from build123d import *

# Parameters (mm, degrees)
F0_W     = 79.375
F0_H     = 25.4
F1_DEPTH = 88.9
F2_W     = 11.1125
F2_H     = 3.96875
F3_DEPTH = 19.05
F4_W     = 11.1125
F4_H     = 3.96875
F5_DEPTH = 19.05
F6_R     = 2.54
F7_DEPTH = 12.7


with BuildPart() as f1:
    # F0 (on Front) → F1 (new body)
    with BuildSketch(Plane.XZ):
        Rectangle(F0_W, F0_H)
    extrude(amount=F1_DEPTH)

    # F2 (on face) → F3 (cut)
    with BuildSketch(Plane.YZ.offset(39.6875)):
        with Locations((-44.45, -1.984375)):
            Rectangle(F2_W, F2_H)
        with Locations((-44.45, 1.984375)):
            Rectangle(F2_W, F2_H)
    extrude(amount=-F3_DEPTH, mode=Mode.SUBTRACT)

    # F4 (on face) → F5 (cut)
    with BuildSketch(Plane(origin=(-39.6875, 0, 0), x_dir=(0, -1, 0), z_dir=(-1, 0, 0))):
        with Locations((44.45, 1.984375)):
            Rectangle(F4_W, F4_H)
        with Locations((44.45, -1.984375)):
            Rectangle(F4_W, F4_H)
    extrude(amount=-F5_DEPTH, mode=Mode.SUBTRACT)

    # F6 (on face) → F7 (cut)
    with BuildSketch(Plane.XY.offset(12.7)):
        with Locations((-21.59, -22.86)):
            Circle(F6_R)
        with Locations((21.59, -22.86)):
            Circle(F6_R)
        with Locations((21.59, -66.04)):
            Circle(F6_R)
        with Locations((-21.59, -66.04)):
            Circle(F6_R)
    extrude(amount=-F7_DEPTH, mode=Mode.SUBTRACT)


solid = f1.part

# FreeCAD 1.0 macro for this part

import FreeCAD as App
import Part
import Sketcher
from FreeCAD import Vector
Q = App.Units.Quantity

doc = App.newDocument("Part")
body = doc.addObject("PartDesign::Body", "Body")

# Sketch on XZ plane
sketch1 = body.newObject("Sketcher::SketchObject", "Sketch")
sketch1.AttachmentSupport = (doc.getObject("XZ_Plane"), [""])
sketch1.MapMode = "FlatFace"
sketch1.addGeometry(Part.LineSegment(Vector(-40, 13, 0), Vector(-40, -13, 0)), False)
sketch1.addGeometry(Part.LineSegment(Vector(-40, -13, 0), Vector(40, -13, 0)), False)
sketch1.addGeometry(Part.LineSegment(Vector(40, -13, 0), Vector(40, 13, 0)), False)
sketch1.addGeometry(Part.LineSegment(Vector(40, 13, 0), Vector(-40, 13, 0)), False)
sketch1.addConstraint(Sketcher.Constraint("Coincident", 0, 2, 1, 1))
sketch1.addConstraint(Sketcher.Constraint("Coincident", 1, 2, 2, 1))
sketch1.addConstraint(Sketcher.Constraint("Coincident", 2, 2, 3, 1))
sketch1.addConstraint(Sketcher.Constraint("Coincident", 3, 2, 0, 1))
sketch1.addConstraint(Sketcher.Constraint("Vertical", 0))
sketch1.addConstraint(Sketcher.Constraint("Horizontal", 1))
sketch1.addConstraint(Sketcher.Constraint("Vertical", 2))
sketch1.addConstraint(Sketcher.Constraint("Horizontal", 3))
sketch1.addConstraint(Sketcher.Constraint("Symmetric", 0, 2, 2, 2, -1, 1))
sketch1.addConstraint(Sketcher.Constraint("DistanceY", 0, 2, 0, 1, Q("1 in")))
sketch1.addConstraint(Sketcher.Constraint("DistanceX", 1, 1, 1, 2, Q("3.125 in")))
pad1 = body.newObject("PartDesign::Pad", "Pad")
pad1.Profile = sketch1
pad1.Length = Q("3.5 in")

# Sketch on YZ plane
sketch2 = body.newObject("Sketcher::SketchObject", "Sketch001")
sketch2.AttachmentSupport = (doc.getObject("YZ_Plane"), [""])
sketch2.MapMode = "FlatFace"
sketch2.AttachmentOffset = App.Placement(Vector(0, 0, 1.5625 * 25.4), App.Rotation())
sketch2.addGeometry(Part.LineSegment(Vector(-50, -4, 0), Vector(-39, -4, 0)), False)
sketch2.addGeometry(Part.LineSegment(Vector(-39, -4, 0), Vector(-39, 4, 0)), False)
sketch2.addGeometry(Part.LineSegment(Vector(-39, 4, 0), Vector(-50, 4, 0)), False)
sketch2.addGeometry(Part.LineSegment(Vector(-50, 4, 0), Vector(-50, -4, 0)), False)
sketch2.addConstraint(Sketcher.Constraint("Coincident", 0, 2, 1, 1))
sketch2.addConstraint(Sketcher.Constraint("Coincident", 1, 2, 2, 1))
sketch2.addConstraint(Sketcher.Constraint("Coincident", 2, 2, 3, 1))
sketch2.addConstraint(Sketcher.Constraint("Coincident", 3, 2, 0, 1))
sketch2.addConstraint(Sketcher.Constraint("Horizontal", 0))
sketch2.addConstraint(Sketcher.Constraint("Vertical", 1))
sketch2.addConstraint(Sketcher.Constraint("Horizontal", 2))
sketch2.addConstraint(Sketcher.Constraint("Vertical", 3))
sketch2.addConstraint(Sketcher.Constraint("DistanceX", 0, 1, 0, 2, Q("0.4375 in")))
sketch2.addConstraint(Sketcher.Constraint("DistanceY", 1, 1, 1, 2, Q("0.3125 in")))
sketch2.addConstraint(Sketcher.Constraint("DistanceX", 0, 2, -1, 1, Q("1.53125 in")))
sketch2.addConstraint(Sketcher.Constraint("DistanceY", 0, 2, -1, 1, Q("0.15625 in")))
pocket1 = body.newObject("PartDesign::Pocket", "Pocket")
pocket1.Profile = sketch2
pocket1.Length = Q("0.75 in")

# Sketch on YZ plane
sketch3 = body.newObject("Sketcher::SketchObject", "Sketch002")
sketch3.AttachmentSupport = (doc.getObject("YZ_Plane"), [""])
sketch3.MapMode = "FlatFace"
sketch3.AttachmentOffset = App.Placement(Vector(0, 0, -1.5625 * 25.4), App.Rotation())
sketch3.addGeometry(Part.LineSegment(Vector(-39, 4, 0), Vector(-39, -4, 0)), False)
sketch3.addGeometry(Part.LineSegment(Vector(-39, -4, 0), Vector(-50, -4, 0)), False)
sketch3.addGeometry(Part.LineSegment(Vector(-50, -4, 0), Vector(-50, 4, 0)), False)
sketch3.addGeometry(Part.LineSegment(Vector(-50, 4, 0), Vector(-39, 4, 0)), False)
sketch3.addConstraint(Sketcher.Constraint("Coincident", 0, 2, 1, 1))
sketch3.addConstraint(Sketcher.Constraint("Coincident", 1, 2, 2, 1))
sketch3.addConstraint(Sketcher.Constraint("Coincident", 2, 2, 3, 1))
sketch3.addConstraint(Sketcher.Constraint("Coincident", 3, 2, 0, 1))
sketch3.addConstraint(Sketcher.Constraint("Vertical", 0))
sketch3.addConstraint(Sketcher.Constraint("Horizontal", 1))
sketch3.addConstraint(Sketcher.Constraint("Vertical", 2))
sketch3.addConstraint(Sketcher.Constraint("Horizontal", 3))
sketch3.addConstraint(Sketcher.Constraint("DistanceX", 1, 2, 1, 1, Q("0.4375 in")))
sketch3.addConstraint(Sketcher.Constraint("DistanceY", 0, 2, 0, 1, Q("0.3125 in")))
sketch3.addConstraint(Sketcher.Constraint("DistanceX", 0, 2, -1, 1, Q("1.53125 in")))
sketch3.addConstraint(Sketcher.Constraint("DistanceY", 0, 2, -1, 1, Q("0.15625 in")))
pocket2 = body.newObject("PartDesign::Pocket", "Pocket001")
pocket2.Profile = sketch3
pocket2.Length = Q("0.75 in")
pocket2.Reversed = True

# Sketch on XY plane
sketch4 = body.newObject("Sketcher::SketchObject", "Sketch003")
sketch4.AttachmentSupport = (doc.getObject("XY_Plane"), [""])
sketch4.MapMode = "FlatFace"
sketch4.AttachmentOffset = App.Placement(Vector(0, 0, 0.5 * 25.4), App.Rotation())
sketch4.addGeometry(Part.Circle(Vector(-21.6, -22.9, 0), Vector(0, 0, 1), 2.5), False)
sketch4.addGeometry(Part.Circle(Vector(21.6, -22.9, 0), Vector(0, 0, 1), 2.5), False)
sketch4.addGeometry(Part.Circle(Vector(21.6, -66, 0), Vector(0, 0, 1), 2.5), False)
sketch4.addGeometry(Part.Circle(Vector(-21.6, -66, 0), Vector(0, 0, 1), 2.5), False)
sketch4.addConstraint(Sketcher.Constraint("Equal", 0, 1))
sketch4.addConstraint(Sketcher.Constraint("Equal", 1, 2))
sketch4.addConstraint(Sketcher.Constraint("Equal", 2, 3))
sketch4.addConstraint(Sketcher.Constraint("Symmetric", 0, 3, 1, 3, -2))
sketch4.addConstraint(Sketcher.Constraint("Symmetric", 2, 3, 3, 3, -2))
sketch4.addConstraint(Sketcher.Constraint("Vertical", 1, 3, 2, 3))
sketch4.addConstraint(Sketcher.Constraint("Diameter", 0, Q("0.2 in")))
sketch4.addConstraint(Sketcher.Constraint("DistanceY", 0, 3, -1, 1, Q("0.9 in")))
sketch4.addConstraint(Sketcher.Constraint("DistanceY", 2, 3, -1, 1, Q("2.6 in")))
sketch4.addConstraint(Sketcher.Constraint("DistanceX", 0, 3, 1, 3, Q("1.7 in")))
pocket3 = body.newObject("PartDesign::Pocket", "Pocket002")
pocket3.Profile = sketch4
pocket3.Length = Q("0.5 in")

doc.recompute()
